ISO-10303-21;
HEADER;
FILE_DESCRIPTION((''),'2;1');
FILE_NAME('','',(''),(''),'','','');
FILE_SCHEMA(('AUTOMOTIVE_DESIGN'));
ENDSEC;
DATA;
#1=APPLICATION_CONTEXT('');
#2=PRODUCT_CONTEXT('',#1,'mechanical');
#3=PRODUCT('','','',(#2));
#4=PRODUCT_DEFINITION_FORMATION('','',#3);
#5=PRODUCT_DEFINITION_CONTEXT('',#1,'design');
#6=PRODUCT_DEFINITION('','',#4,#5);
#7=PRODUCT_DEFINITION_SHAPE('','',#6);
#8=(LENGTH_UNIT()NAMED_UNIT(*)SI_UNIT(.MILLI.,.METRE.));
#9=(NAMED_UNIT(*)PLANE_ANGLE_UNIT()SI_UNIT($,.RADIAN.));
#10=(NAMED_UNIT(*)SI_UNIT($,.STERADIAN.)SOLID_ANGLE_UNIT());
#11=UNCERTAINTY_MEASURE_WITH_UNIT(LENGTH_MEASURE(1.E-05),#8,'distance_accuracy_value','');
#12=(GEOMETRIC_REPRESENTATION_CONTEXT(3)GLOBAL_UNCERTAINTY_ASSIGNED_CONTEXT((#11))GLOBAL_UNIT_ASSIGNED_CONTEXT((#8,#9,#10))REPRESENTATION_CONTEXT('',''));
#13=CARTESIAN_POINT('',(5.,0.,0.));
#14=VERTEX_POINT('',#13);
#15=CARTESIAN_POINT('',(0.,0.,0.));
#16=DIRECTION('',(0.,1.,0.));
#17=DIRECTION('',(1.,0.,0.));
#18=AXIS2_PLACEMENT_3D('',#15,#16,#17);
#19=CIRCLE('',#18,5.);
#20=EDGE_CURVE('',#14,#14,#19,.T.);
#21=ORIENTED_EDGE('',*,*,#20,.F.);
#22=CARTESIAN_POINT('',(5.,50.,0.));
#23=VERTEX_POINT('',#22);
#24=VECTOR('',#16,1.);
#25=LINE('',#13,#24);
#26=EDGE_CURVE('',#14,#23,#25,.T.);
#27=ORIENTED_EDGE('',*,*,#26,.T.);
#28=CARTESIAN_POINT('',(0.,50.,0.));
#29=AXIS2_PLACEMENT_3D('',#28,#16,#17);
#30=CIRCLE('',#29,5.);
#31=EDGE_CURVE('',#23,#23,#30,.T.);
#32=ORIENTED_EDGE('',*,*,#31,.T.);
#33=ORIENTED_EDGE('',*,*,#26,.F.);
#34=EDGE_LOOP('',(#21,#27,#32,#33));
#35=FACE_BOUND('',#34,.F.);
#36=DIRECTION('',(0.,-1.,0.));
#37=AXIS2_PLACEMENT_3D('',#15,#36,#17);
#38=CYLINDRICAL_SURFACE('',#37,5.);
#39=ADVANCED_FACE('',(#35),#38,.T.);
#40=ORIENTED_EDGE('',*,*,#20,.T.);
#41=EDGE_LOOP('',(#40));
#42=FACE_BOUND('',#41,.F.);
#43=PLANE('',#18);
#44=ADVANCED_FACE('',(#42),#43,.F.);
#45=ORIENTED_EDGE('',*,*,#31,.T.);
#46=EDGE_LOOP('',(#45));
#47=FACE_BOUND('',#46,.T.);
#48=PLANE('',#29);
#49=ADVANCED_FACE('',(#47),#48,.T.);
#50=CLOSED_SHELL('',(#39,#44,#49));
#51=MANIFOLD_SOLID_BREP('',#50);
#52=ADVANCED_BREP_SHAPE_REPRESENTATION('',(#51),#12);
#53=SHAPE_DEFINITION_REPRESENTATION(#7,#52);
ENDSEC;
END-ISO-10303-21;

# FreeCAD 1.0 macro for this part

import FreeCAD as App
import Part
import Sketcher

V = App.Vector

doc = App.newDocument("Part")
body = doc.addObject("PartDesign::Body", "Body")

# Sketch on XZ plane
sketch1 = body.newObject("Sketcher::SketchObject", "Sketch")
sketch1.AttachmentSupport = (doc.getObject("XZ_Plane"), [""])
sketch1.MapMode = "FlatFace"
sketch1.addGeometry(Part.Circle(V(0, 0, 0), V(0, 0, 1), 5), False)
sketch1.addConstraint([
    Sketcher.Constraint("Coincident", 0, 3, -1, 1),
    Sketcher.Constraint("Diameter", 0, 10.0),
])
pad1 = body.newObject("PartDesign::Pad", "Pad")
pad1.Profile = sketch1
pad1.Length = 50
pad1.Reversed = True

doc.recompute()
